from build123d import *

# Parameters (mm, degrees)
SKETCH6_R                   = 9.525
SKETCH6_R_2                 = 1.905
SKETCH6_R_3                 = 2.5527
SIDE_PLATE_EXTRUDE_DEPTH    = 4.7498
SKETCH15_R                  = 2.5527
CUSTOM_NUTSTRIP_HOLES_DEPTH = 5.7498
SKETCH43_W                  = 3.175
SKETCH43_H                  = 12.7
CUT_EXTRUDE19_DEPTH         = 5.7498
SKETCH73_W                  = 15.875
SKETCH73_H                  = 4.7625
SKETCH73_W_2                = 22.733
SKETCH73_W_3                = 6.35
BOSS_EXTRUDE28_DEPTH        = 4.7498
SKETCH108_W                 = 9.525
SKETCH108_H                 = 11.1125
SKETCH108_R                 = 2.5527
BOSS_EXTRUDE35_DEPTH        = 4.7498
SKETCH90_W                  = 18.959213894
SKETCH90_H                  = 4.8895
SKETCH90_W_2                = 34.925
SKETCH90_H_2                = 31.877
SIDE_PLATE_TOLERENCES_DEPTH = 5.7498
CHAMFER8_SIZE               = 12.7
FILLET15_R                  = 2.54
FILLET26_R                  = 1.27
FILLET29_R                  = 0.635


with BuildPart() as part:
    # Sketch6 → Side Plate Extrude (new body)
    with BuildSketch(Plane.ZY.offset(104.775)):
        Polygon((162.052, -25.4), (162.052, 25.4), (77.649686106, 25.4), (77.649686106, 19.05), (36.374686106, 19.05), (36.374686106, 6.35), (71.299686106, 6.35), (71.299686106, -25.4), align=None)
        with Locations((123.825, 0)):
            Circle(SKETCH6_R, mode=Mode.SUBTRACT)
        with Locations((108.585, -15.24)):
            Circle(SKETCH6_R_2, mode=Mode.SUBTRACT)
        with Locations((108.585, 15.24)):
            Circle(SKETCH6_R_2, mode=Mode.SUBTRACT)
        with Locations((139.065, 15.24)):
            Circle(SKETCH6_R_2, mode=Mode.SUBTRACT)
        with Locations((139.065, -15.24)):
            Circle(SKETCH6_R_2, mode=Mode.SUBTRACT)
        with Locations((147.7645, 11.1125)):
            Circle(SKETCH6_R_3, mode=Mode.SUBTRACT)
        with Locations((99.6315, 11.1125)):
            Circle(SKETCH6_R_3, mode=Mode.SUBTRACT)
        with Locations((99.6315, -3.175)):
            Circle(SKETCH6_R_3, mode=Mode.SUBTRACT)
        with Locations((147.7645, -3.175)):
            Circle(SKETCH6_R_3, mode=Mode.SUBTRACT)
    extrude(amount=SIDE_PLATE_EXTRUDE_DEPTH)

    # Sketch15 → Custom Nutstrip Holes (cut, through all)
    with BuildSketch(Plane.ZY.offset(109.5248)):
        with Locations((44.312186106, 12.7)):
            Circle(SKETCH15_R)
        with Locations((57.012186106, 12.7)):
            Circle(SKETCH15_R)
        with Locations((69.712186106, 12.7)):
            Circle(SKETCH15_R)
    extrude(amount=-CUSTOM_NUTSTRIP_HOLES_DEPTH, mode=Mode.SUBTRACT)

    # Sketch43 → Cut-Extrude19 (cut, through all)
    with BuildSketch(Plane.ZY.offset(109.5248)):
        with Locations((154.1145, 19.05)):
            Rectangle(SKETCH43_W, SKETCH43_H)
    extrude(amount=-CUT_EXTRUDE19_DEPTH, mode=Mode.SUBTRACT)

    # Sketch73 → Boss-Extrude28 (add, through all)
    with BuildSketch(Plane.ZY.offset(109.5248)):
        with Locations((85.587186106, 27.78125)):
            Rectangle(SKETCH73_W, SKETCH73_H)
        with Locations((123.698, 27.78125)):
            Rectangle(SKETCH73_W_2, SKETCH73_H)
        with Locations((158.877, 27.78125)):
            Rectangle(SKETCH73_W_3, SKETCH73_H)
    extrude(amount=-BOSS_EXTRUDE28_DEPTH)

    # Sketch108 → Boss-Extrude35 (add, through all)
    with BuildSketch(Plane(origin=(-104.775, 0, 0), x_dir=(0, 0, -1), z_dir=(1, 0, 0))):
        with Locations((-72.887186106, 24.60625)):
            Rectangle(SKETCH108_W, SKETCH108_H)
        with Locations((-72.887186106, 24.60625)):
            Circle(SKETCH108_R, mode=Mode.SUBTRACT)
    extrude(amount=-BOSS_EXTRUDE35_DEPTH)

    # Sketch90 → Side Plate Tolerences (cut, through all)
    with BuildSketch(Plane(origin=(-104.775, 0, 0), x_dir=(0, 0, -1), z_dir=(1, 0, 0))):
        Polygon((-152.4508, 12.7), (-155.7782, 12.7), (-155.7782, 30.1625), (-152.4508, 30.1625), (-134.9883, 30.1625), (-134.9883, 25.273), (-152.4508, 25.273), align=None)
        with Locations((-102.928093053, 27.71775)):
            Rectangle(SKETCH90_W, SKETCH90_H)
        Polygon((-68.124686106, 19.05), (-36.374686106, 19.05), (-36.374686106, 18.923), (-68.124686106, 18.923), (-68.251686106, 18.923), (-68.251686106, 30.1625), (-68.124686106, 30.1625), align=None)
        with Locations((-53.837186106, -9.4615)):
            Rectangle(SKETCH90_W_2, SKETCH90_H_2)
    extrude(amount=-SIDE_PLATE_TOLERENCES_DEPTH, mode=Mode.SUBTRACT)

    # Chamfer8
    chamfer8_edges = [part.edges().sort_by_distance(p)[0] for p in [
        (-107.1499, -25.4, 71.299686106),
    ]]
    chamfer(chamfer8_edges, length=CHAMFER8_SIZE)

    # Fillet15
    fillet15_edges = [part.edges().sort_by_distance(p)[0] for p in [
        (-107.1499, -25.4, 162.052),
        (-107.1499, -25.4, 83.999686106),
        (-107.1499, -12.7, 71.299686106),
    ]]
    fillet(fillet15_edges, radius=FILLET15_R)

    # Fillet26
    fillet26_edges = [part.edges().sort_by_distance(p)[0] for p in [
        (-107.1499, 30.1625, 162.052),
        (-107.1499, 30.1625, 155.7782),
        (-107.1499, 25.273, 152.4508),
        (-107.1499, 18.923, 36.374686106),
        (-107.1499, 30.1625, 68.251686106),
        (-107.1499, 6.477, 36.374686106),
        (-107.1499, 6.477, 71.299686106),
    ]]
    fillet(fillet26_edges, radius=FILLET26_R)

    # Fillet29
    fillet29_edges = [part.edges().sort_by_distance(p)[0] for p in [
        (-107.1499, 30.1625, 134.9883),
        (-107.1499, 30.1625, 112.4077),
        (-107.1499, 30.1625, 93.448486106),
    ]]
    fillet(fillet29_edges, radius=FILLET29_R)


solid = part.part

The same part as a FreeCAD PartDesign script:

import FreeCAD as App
import Part
import Sketcher
from FreeCAD import Vector
Q = App.Units.Quantity


def edges_at(feature, points):
    """Names of the edges that pass closest to the given points."""
    edges = feature.Shape.Edges
    near = lambda p: min(range(len(edges)), key=lambda i: edges[i].distToShape(Part.Vertex(*p))[0])
    return sorted({f"Edge{near(p) + 1}" for p in points})


def add_polygon(sketch, points):
    """Adds a closed chain of lines whose ends are joined by coincident constraints."""
    first, n = sketch.GeometryCount, len(points)
    for a, b in zip(points, points[1:] + points[:1]):
        sketch.addGeometry(Part.LineSegment(App.Vector(*a, 0), App.Vector(*b, 0)), False)
    for i in range(n):
        sketch.addConstraint(Sketcher.Constraint("Coincident", first + i, 2, first + (i + 1) % n, 1))

doc = App.newDocument("Part")
body = doc.addObject("PartDesign::Body", "Body")

# Sketch on YZ plane
sketch1 = body.newObject("Sketcher::SketchObject", "Sketch")
sketch1.AttachmentSupport = (doc.getObject("YZ_Plane"), [""])
sketch1.MapMode = "FlatFace"
sketch1.AttachmentOffset = App.Placement(Vector(0, 0, -4.125 * 25.4), App.Rotation())
add_polygon(sketch1, [(-25.4, 162.1), (25.4, 162.1), (25.4, 77.6), (19.1, 77.6), (19.1, 36.4), (6.3, 36.4), (6.3, 71.3), (-25.4, 71.3)])  # lines 0-7
sketch1.addGeometry(Part.Circle(Vector(-15.2, 108.6, 0), Vector(0, 0, 1), 1.9), False)  # 8
sketch1.addGeometry(Part.Circle(Vector(-3.2, 99.6, 0), Vector(0, 0, 1), 2.6), False)  # 9
sketch1.addGeometry(Part.Circle(Vector(-15.2, 139.1, 0), Vector(0, 0, 1), 1.9), False)  # 10
sketch1.addGeometry(Part.Circle(Vector(-3.2, 147.8, 0), Vector(0, 0, 1), 2.6), False)  # 11
sketch1.addGeometry(Part.Circle(Vector(11.1, 99.6, 0), Vector(0, 0, 1), 2.6), False)  # 12
sketch1.addGeometry(Part.Circle(Vector(15.2, 108.6, 0), Vector(0, 0, 1), 1.9), False)  # 13
sketch1.addGeometry(Part.Circle(Vector(0, 123.8, 0), Vector(0, 0, 1), 9.5), False)  # 14
sketch1.addGeometry(Part.Circle(Vector(11.1, 147.8, 0), Vector(0, 0, 1), 2.6), False)  # 15
sketch1.addGeometry(Part.Circle(Vector(15.2, 139.1, 0), Vector(0, 0, 1), 1.9), False)  # 16
sketch1.addConstraint(Sketcher.Constraint("Horizontal", 0))
sketch1.addConstraint(Sketcher.Constraint("Vertical", 1))
sketch1.addConstraint(Sketcher.Constraint("Horizontal", 2))
sketch1.addConstraint(Sketcher.Constraint("Vertical", 3))
sketch1.addConstraint(Sketcher.Constraint("Horizontal", 4))
sketch1.addConstraint(Sketcher.Constraint("Vertical", 5))
sketch1.addConstraint(Sketcher.Constraint("Horizontal", 6))
sketch1.addConstraint(Sketcher.Constraint("Vertical", 7))
sketch1.addConstraint(Sketcher.Constraint("Equal", 8, 10))
sketch1.addConstraint(Sketcher.Constraint("Equal", 9, 11))
sketch1.addConstraint(Sketcher.Constraint("Equal", 11, 12))
sketch1.addConstraint(Sketcher.Constraint("Equal", 10, 13))
sketch1.addConstraint(Sketcher.Constraint("Equal", 12, 15))
sketch1.addConstraint(Sketcher.Constraint("Equal", 13, 16))
sketch1.addConstraint(Sketcher.Constraint("Symmetric", 8, 3, 13, 3, -2))
sketch1.addConstraint(Sketcher.Constraint("Symmetric", 10, 3, 16, 3, -2))
sketch1.addConstraint(Sketcher.Constraint("PointOnObject", 14, 3, -2))
sketch1.addConstraint(Sketcher.Constraint("Horizontal", 9, 3, 12, 3))
sketch1.addConstraint(Sketcher.Constraint("Horizontal", 11, 3, 15, 3))
sketch1.addConstraint(Sketcher.Constraint("Vertical", 8, 3, 10, 3))
sketch1.addConstraint(Sketcher.Constraint("Vertical", 9, 3, 11, 3))
sketch1.addConstraint(Sketcher.Constraint("Vertical", 12, 3, 15, 3))
sketch1.addConstraint(Sketcher.Constraint("Diameter", 8, Q("0.15 in")))
sketch1.addConstraint(Sketcher.Constraint("Diameter", 14, Q("0.75 in")))
sketch1.addConstraint(Sketcher.Constraint("DistanceX", 0, 1, 0, 2, Q("2 in")))
sketch1.addConstraint(Sketcher.Constraint("Diameter", 9, Q("0.201 in")))
sketch1.addConstraint(Sketcher.Constraint("DistanceX", 4, 2, 4, 1, Q("0.5 in")))
sketch1.addConstraint(Sketcher.Constraint("DistanceX", -1, 1, 0, 2, Q("1 in")))
sketch1.addConstraint(Sketcher.Constraint("DistanceX", 2, 2, 2, 1, Q("0.25 in")))
sketch1.addConstraint(Sketcher.Constraint("DistanceX", 8, 3, -1, 1, Q("0.6 in")))
sketch1.addConstraint(Sketcher.Constraint("DistanceY", 8, 3, 10, 3, Q("1.2 in")))
sketch1.addConstraint(Sketcher.Constraint("DistanceY", 14, 3, 10, 3, Q("0.6 in")))
sketch1.addConstraint(Sketcher.Constraint("DistanceY", 3, 2, 3, 1, Q("1.625 in")))
sketch1.addConstraint(Sketcher.Constraint("DistanceY", 5, 1, 5, 2, Q("1.375 in")))
sketch1.addConstraint(Sketcher.Constraint("DistanceY", -1, 1, 0, 2, Q("6.38 in")))
sketch1.addConstraint(Sketcher.Constraint("DistanceY", -1, 1, 8, 3, Q("4.275 in")))
sketch1.addConstraint(Sketcher.Constraint("DistanceX", 9, 3, -1, 1, Q("0.125 in")))
sketch1.addConstraint(Sketcher.Constraint("DistanceX", -1, 1, 12, 3, Q("0.4375 in")))
sketch1.addConstraint(Sketcher.Constraint("DistanceY", 9, 3, 11, 3, Q("1.895 in")))
sketch1.addConstraint(Sketcher.Constraint("DistanceY", 15, 3, 0, 2, Q("0.5625 in")))
sketch1.addConstraint(Sketcher.Constraint("DistanceY", 1, 2, 1, 1, Q("84.402314 mm")))
pad1 = body.newObject("PartDesign::Pad", "Pad")
pad1.Profile = sketch1
pad1.Length = Q("0.187 in")
pad1.Reversed = True

# Sketch on YZ plane
sketch2 = body.newObject("Sketcher::SketchObject", "Sketch001")
sketch2.AttachmentSupport = (doc.getObject("YZ_Plane"), [""])
sketch2.MapMode = "FlatFace"
sketch2.AttachmentOffset = App.Placement(Vector(0, 0, -4.312 * 25.4), App.Rotation())
sketch2.addGeometry(Part.Circle(Vector(12.7, 44.3, 0), Vector(0, 0, 1), 2.6), False)
sketch2.addGeometry(Part.Circle(Vector(12.7, 57, 0), Vector(0, 0, 1), 2.6), False)
sketch2.addGeometry(Part.Circle(Vector(12.7, 69.7, 0), Vector(0, 0, 1), 2.6), False)
sketch2.addConstraint(Sketcher.Constraint("Equal", 0, 1))
sketch2.addConstraint(Sketcher.Constraint("Equal", 1, 2))
sketch2.addConstraint(Sketcher.Constraint("Vertical", 0, 3, 1, 3))
sketch2.addConstraint(Sketcher.Constraint("Vertical", 1, 3, 2, 3))
sketch2.addConstraint(Sketcher.Constraint("Diameter", 0, Q("0.201 in")))
sketch2.addConstraint(Sketcher.Constraint("DistanceY", 0, 3, 2, 3, Q("1 in")))
sketch2.addConstraint(Sketcher.Constraint("DistanceX", -1, 1, 0, 3, Q("0.5 in")))
sketch2.addConstraint(Sketcher.Constraint("DistanceY", 0, 3, 1, 3, Q("0.5 in")))
sketch2.addConstraint(Sketcher.Constraint("DistanceY", -1, 1, 0, 3, Q("44.312186 mm")))
pocket1 = body.newObject("PartDesign::Pocket", "Pocket")
pocket1.Profile = sketch2
pocket1.Type = "ThroughAll"
pocket1.Reversed = True

# Sketch on YZ plane
sketch3 = body.newObject("Sketcher::SketchObject", "Sketch002")
sketch3.AttachmentSupport = (doc.getObject("YZ_Plane"), [""])
sketch3.MapMode = "FlatFace"
sketch3.AttachmentOffset = App.Placement(Vector(0, 0, -4.312 * 25.4), App.Rotation())
add_polygon(sketch3, [(25.4, 152.5), (12.7, 152.5), (12.7, 155.7), (25.4, 155.7)])  # lines 0-3
sketch3.addConstraint(Sketcher.Constraint("Horizontal", 0))
sketch3.addConstraint(Sketcher.Constraint("Vertical", 1))
sketch3.addConstraint(Sketcher.Constraint("Horizontal", 2))
sketch3.addConstraint(Sketcher.Constraint("Vertical", 3))
sketch3.addConstraint(Sketcher.Constraint("DistanceX", 0, 2, 0, 1, Q("0.5 in")))
sketch3.addConstraint(Sketcher.Constraint("DistanceX", -1, 1, 2, 2, Q("1 in")))
sketch3.addConstraint(Sketcher.Constraint("DistanceY", 1, 1, 1, 2, Q("0.125 in")))
sketch3.addConstraint(Sketcher.Constraint("DistanceY", -1, 1, 1, 2, Q("6.13 in")))
pocket2 = body.newObject("PartDesign::Pocket", "Pocket001")
pocket2.Profile = sketch3
pocket2.Type = "ThroughAll"
pocket2.Reversed = True

# Sketch on YZ plane
sketch4 = body.newObject("Sketcher::SketchObject", "Sketch003")
sketch4.AttachmentSupport = (doc.getObject("YZ_Plane"), [""])
sketch4.MapMode = "FlatFace"
sketch4.AttachmentOffset = App.Placement(Vector(0, 0, -4.312 * 25.4), App.Rotation())
add_polygon(sketch4, [(30.2, 77.6), (25.4, 77.6), (25.4, 93.5), (30.2, 93.5)])  # lines 0-3
add_polygon(sketch4, [(30.2, 112.3), (25.4, 112.3), (25.4, 135.1), (30.2, 135.1)])  # lines 4-7
add_polygon(sketch4, [(30.2, 155.7), (25.4, 155.7), (25.4, 162.1), (30.2, 162.1)])  # lines 8-11
sketch4.addConstraint(Sketcher.Constraint("Horizontal", 0))
sketch4.addConstraint(Sketcher.Constraint("Vertical", 1))
sketch4.addConstraint(Sketcher.Constraint("Horizontal", 2))
sketch4.addConstraint(Sketcher.Constraint("Vertical", 3))
sketch4.addConstraint(Sketcher.Constraint("Horizontal", 4))
sketch4.addConstraint(Sketcher.Constraint("Vertical", 5))
sketch4.addConstraint(Sketcher.Constraint("Horizontal", 6))
sketch4.addConstraint(Sketcher.Constraint("Vertical", 7))
sketch4.addConstraint(Sketcher.Constraint("Horizontal", 8))
sketch4.addConstraint(Sketcher.Constraint("Vertical", 9))
sketch4.addConstraint(Sketcher.Constraint("Horizontal", 10))
sketch4.addConstraint(Sketcher.Constraint("Vertical", 11))
sketch4.addConstraint(Sketcher.Constraint("Vertical", 1, 2, 4, 2))
sketch4.addConstraint(Sketcher.Constraint("Vertical", 3, 2, 6, 2))
sketch4.addConstraint(Sketcher.Constraint("Vertical", 5, 2, 8, 2))
sketch4.addConstraint(Sketcher.Constraint("Vertical", 7, 2, 10, 2))
sketch4.addConstraint(Sketcher.Constraint("DistanceX", -1, 1, 0, 2, Q("1 in")))
sketch4.addConstraint(Sketcher.Constraint("DistanceY", 9, 1, 9, 2, Q("0.25 in")))
sketch4.addConstraint(Sketcher.Constraint("DistanceX", 0, 2, 0, 1, Q("0.1875 in")))
sketch4.addConstraint(Sketcher.Constraint("DistanceY", 1, 1, 1, 2, Q("0.625 in")))
sketch4.addConstraint(Sketcher.Constraint("DistanceY", 5, 1, 5, 2, Q("0.895 in")))
sketch4.addConstraint(Sketcher.Constraint("DistanceY", -1, 1, 8, 2, Q("6.13 in")))
sketch4.addConstraint(Sketcher.Constraint("DistanceY", 5, 2, 8, 2, Q("0.8125 in")))
sketch4.addConstraint(Sketcher.Constraint("DistanceY", -1, 1, 0, 2, Q("77.649686 mm")))
pad2 = body.newObject("PartDesign::Pad", "Pad001")
pad2.Profile = sketch4
pad2.Length = Q("0.187 in")

# Sketch on YZ plane
sketch5 = body.newObject("Sketcher::SketchObject", "Sketch004")
sketch5.AttachmentSupport = (doc.getObject("YZ_Plane"), [""])
sketch5.MapMode = "FlatFace"
sketch5.AttachmentOffset = App.Placement(Vector(0, 0, -4.125 * 25.4), App.Rotation())
add_polygon(sketch5, [(30.2, 77.6), (19.1, 77.6), (19.1, 68.1), (30.2, 68.1)])  # lines 0-3
sketch5.addGeometry(Part.Circle(Vector(24.6, 72.9, 0), Vector(0, 0, 1), 2.6), False)  # 4
sketch5.addConstraint(Sketcher.Constraint("Horizontal", 0))
sketch5.addConstraint(Sketcher.Constraint("Vertical", 1))
sketch5.addConstraint(Sketcher.Constraint("Horizontal", 2))
sketch5.addConstraint(Sketcher.Constraint("Vertical", 3))
sketch5.addConstraint(Sketcher.Constraint("Diameter", 4, Q("0.201 in")))
sketch5.addConstraint(Sketcher.Constraint("DistanceX", 0, 2, 0, 1, Q("0.4375 in")))
sketch5.addConstraint(Sketcher.Constraint("DistanceY", 1, 2, 1, 1, Q("0.375 in")))
sketch5.addConstraint(Sketcher.Constraint("DistanceX", -1, 1, 0, 2, Q("0.75 in")))
sketch5.addConstraint(Sketcher.Constraint("DistanceX", -1, 1, 4, 3, Q("0.96875 in")))
sketch5.addConstraint(Sketcher.Constraint("DistanceY", 4, 3, 0, 2, Q("0.1875 in")))
sketch5.addConstraint(Sketcher.Constraint("DistanceY", -1, 1, 4, 3, Q("72.887186 mm")))
pad3 = body.newObject("PartDesign::Pad", "Pad002")
pad3.Profile = sketch5
pad3.Length = Q("0.187 in")
pad3.Reversed = True

# Sketch on YZ plane
sketch6 = body.newObject("Sketcher::SketchObject", "Sketch005")
sketch6.AttachmentSupport = (doc.getObject("YZ_Plane"), [""])
sketch6.MapMode = "FlatFace"
sketch6.AttachmentOffset = App.Placement(Vector(0, 0, -4.125 * 25.4), App.Rotation())
add_polygon(sketch6, [(12.7, 155.78), (12.7, 152.45), (25.27, 152.45), (25.27, 134.99), (30.16, 134.99), (30.16, 155.78)])  # lines 0-5
add_polygon(sketch6, [(30.16, 112.41), (25.27, 112.41), (25.27, 93.45), (30.16, 93.45)])  # lines 6-9
add_polygon(sketch6, [(19.05, 36.37), (19.05, 68.12), (30.16, 68.12), (30.16, 68.25), (18.92, 68.25), (18.92, 36.37)])  # lines 10-15
add_polygon(sketch6, [(6.48, 71.3), (-25.4, 71.3), (-25.4, 36.37), (6.48, 36.37)])  # lines 16-19
sketch6.addConstraint(Sketcher.Constraint("Vertical", 0))
sketch6.addConstraint(Sketcher.Constraint("Horizontal", 1))
sketch6.addConstraint(Sketcher.Constraint("Vertical", 2))
sketch6.addConstraint(Sketcher.Constraint("Horizontal", 3))
sketch6.addConstraint(Sketcher.Constraint("Vertical", 4))
sketch6.addConstraint(Sketcher.Constraint("Horizontal", 5))
sketch6.addConstraint(Sketcher.Constraint("Horizontal", 6))
sketch6.addConstraint(Sketcher.Constraint("Vertical", 7))
sketch6.addConstraint(Sketcher.Constraint("Horizontal", 8))
sketch6.addConstraint(Sketcher.Constraint("Vertical", 9))
sketch6.addConstraint(Sketcher.Constraint("Vertical", 10))
sketch6.addConstraint(Sketcher.Constraint("Horizontal", 11))
sketch6.addConstraint(Sketcher.Constraint("Vertical", 12))
sketch6.addConstraint(Sketcher.Constraint("Horizontal", 13))
sketch6.addConstraint(Sketcher.Constraint("Vertical", 14))
sketch6.addConstraint(Sketcher.Constraint("Horizontal", 15))
sketch6.addConstraint(Sketcher.Constraint("Horizontal", 16))
sketch6.addConstraint(Sketcher.Constraint("Vertical", 17))
sketch6.addConstraint(Sketcher.Constraint("Horizontal", 18))
sketch6.addConstraint(Sketcher.Constraint("Vertical", 19))
sketch6.addConstraint(Sketcher.Constraint("Horizontal", 15, 2, 17, 2))
sketch6.addConstraint(Sketcher.Constraint("Vertical", 2, 2, 6, 2))
sketch6.addConstraint(Sketcher.Constraint("Vertical", 4, 2, 8, 2))
sketch6.addConstraint(Sketcher.Constraint("Vertical", 9, 2, 11, 2))
sketch6.addConstraint(Sketcher.Constraint("Equal", 5, 2))
sketch6.addConstraint(Sketcher.Constraint("Equal", 15, 12))
sketch6.addConstraint(Sketcher.Constraint("Equal", 18, 14))
sketch6.addConstraint(Sketcher.Constraint("DistanceX", 16, 2, -1, 1, Q("1 in")))
sketch6.addConstraint(Sketcher.Constraint("DistanceY", 10, 1, 10, 2, Q("1.25 in")))
sketch6.addConstraint(Sketcher.Constraint("DistanceX", -1, 1, 0, 2, Q("0.5 in")))
sketch6.addConstraint(Sketcher.Constraint("DistanceX", 1, 1, 1, 2, Q("0.495 in")))
sketch6.addConstraint(Sketcher.Constraint("DistanceX", 5, 2, 5, 1, Q("0.6875 in")))
sketch6.addConstraint(Sketcher.Constraint("DistanceX", 11, 1, 11, 2, Q("0.4375 in")))
sketch6.addConstraint(Sketcher.Constraint("DistanceX", 15, 1, 15, 2, Q("0.005 in")))
sketch6.addConstraint(Sketcher.Constraint("DistanceY", 0, 2, 0, 1, Q("0.131 in")))
sketch6.addConstraint(Sketcher.Constraint("DistanceY", 17, 2, 17, 1, Q("1.375 in")))
sketch6.addConstraint(Sketcher.Constraint("DistanceY", -1, 1, 0, 2, Q("6.002 in")))
sketch6.addConstraint(Sketcher.Constraint("DistanceY", 6, 2, 2, 2, Q("0.889 in")))
sketch6.addConstraint(Sketcher.Constraint("DistanceY", 10, 2, 7, 2, Q("0.997 in")))
sketch6.addConstraint(Sketcher.Constraint("DistanceY", 7, 2, 7, 1, Q("18.959214 mm")))
pocket3 = body.newObject("PartDesign::Pocket", "Pocket002")
pocket3.Profile = sketch6
pocket3.Type = "ThroughAll"
doc.recompute()

chamfer = body.newObject("PartDesign::Chamfer", "Chamfer")
chamfer.Base = (pocket3, edges_at(pocket3, [(-107.15, -25.4, 71.3)]))
chamfer.Size = Q("0.5 in")
doc.recompute()

fillet = body.newObject("PartDesign::Fillet", "Fillet")
fillet.Base = (chamfer, edges_at(chamfer, [(-107.15, -25.4, 162.052), (-107.15, -25.4, 84), (-107.15, -12.7, 71.3)]))
fillet.Radius = Q("0.1 in")
doc.recompute()

fillet2 = body.newObject("PartDesign::Fillet", "Fillet001")
fillet2.Base = (fillet, edges_at(fillet, [
    (-107.15, 30.163, 162.052),
    (-107.15, 30.163, 155.778),
    (-107.15, 25.273, 152.451),
    (-107.15, 18.923, 36.375),
    (-107.15, 30.163, 68.252),
    (-107.15, 6.477, 36.375),
    (-107.15, 6.477, 71.3),
]))
fillet2.Radius = Q("0.05 in")
doc.recompute()

fillet3 = body.newObject("PartDesign::Fillet", "Fillet002")
fillet3.Base = (fillet2, edges_at(fillet2, [(-107.15, 30.163, 134.988), (-107.15, 30.163, 112.408), (-107.15, 30.163, 93.448)]))
fillet3.Radius = Q("0.025 in")

doc.recompute()
